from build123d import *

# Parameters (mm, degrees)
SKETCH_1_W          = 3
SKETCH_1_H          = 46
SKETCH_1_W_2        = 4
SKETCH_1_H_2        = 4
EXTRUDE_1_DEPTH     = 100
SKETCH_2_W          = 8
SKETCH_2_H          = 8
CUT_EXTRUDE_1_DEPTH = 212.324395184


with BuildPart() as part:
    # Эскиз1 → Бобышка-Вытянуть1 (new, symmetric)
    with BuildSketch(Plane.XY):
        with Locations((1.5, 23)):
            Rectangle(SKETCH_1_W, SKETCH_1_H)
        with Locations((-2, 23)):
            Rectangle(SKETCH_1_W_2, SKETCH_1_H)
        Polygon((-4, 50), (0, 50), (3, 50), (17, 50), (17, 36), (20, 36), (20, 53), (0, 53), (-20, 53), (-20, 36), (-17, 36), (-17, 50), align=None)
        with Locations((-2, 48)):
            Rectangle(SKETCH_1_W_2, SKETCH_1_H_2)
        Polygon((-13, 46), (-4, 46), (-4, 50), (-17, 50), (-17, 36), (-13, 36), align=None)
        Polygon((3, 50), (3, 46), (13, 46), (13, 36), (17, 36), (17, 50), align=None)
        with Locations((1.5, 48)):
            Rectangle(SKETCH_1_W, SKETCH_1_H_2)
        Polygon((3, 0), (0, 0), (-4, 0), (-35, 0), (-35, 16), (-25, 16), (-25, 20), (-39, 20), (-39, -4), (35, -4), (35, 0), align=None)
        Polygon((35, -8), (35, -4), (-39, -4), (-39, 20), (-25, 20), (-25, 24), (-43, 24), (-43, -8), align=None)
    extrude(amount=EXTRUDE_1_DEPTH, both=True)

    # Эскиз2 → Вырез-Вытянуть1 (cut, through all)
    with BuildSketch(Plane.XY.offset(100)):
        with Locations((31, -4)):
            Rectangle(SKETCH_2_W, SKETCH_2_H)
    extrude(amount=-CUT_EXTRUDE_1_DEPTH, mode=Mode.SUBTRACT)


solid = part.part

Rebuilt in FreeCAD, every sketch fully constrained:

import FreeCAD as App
import Part
import Sketcher
Q = App.Units.Quantity

doc = App.newDocument("Part")
body = doc.addObject("PartDesign::Body", "Body")

# Sketch on XY plane
sketch1 = body.newObject("Sketcher::SketchObject", "Sketch")
sketch1.AttachmentSupport = (doc.getObject("XY_Plane"), [""])
sketch1.MapMode = "FlatFace"
sketch1.addGeometry([
    Part.LineSegment(App.Vector(3, 0, 0), App.Vector(3, 46, 0)),  # 0
    Part.LineSegment(App.Vector(3, 46, 0), App.Vector(13, 46, 0)),  # 1
    Part.LineSegment(App.Vector(13, 46, 0), App.Vector(13, 36, 0)),  # 2
    Part.LineSegment(App.Vector(13, 36, 0), App.Vector(20, 36, 0)),  # 3
    Part.LineSegment(App.Vector(20, 36, 0), App.Vector(20, 53, 0)),  # 4
    Part.LineSegment(App.Vector(20, 53, 0), App.Vector(-20, 53, 0)),  # 5
    Part.LineSegment(App.Vector(-20, 53, 0), App.Vector(-20, 36, 0)),  # 6
    Part.LineSegment(App.Vector(-20, 36, 0), App.Vector(-13, 36, 0)),  # 7
    Part.LineSegment(App.Vector(-13, 36, 0), App.Vector(-13, 46, 0)),  # 8
    Part.LineSegment(App.Vector(-13, 46, 0), App.Vector(-4, 46, 0)),  # 9
    Part.LineSegment(App.Vector(-4, 46, 0), App.Vector(-4, 0, 0)),  # 10
    Part.LineSegment(App.Vector(-4, 0, 0), App.Vector(-35, 0, 0)),  # 11
    Part.LineSegment(App.Vector(-35, 0, 0), App.Vector(-35, 16, 0)),  # 12
    Part.LineSegment(App.Vector(-35, 16, 0), App.Vector(-25, 16, 0)),  # 13
    Part.LineSegment(App.Vector(-25, 16, 0), App.Vector(-25, 24, 0)),  # 14
    Part.LineSegment(App.Vector(-25, 24, 0), App.Vector(-43, 24, 0)),  # 15
    Part.LineSegment(App.Vector(-43, 24, 0), App.Vector(-43, -8, 0)),  # 16
    Part.LineSegment(App.Vector(-43, -8, 0), App.Vector(35, -8, 0)),  # 17
    Part.LineSegment(App.Vector(35, -8, 0), App.Vector(35, 0, 0)),  # 18
    Part.LineSegment(App.Vector(35, 0, 0), App.Vector(3, 0, 0)),  # 19
], False)
sketch1.addConstraint([
    Sketcher.Constraint("Coincident", 0, 2, 1, 1),
    Sketcher.Constraint("Coincident", 1, 2, 2, 1),
    Sketcher.Constraint("Coincident", 2, 2, 3, 1),
    Sketcher.Constraint("Coincident", 3, 2, 4, 1),
    Sketcher.Constraint("Coincident", 4, 2, 5, 1),
    Sketcher.Constraint("Coincident", 5, 2, 6, 1),
    Sketcher.Constraint("Coincident", 6, 2, 7, 1),
    Sketcher.Constraint("Coincident", 7, 2, 8, 1),
    Sketcher.Constraint("Coincident", 8, 2, 9, 1),
    Sketcher.Constraint("Coincident", 9, 2, 10, 1),
    Sketcher.Constraint("Coincident", 10, 2, 11, 1),
    Sketcher.Constraint("Coincident", 11, 2, 12, 1),
    Sketcher.Constraint("Coincident", 12, 2, 13, 1),
    Sketcher.Constraint("Coincident", 13, 2, 14, 1),
    Sketcher.Constraint("Coincident", 14, 2, 15, 1),
    Sketcher.Constraint("Coincident", 15, 2, 16, 1),
    Sketcher.Constraint("Coincident", 16, 2, 17, 1),
    Sketcher.Constraint("Coincident", 17, 2, 18, 1),
    Sketcher.Constraint("Coincident", 18, 2, 19, 1),
    Sketcher.Constraint("Coincident", 19, 2, 0, 1),
    Sketcher.Constraint("Vertical", 0),
    Sketcher.Constraint("Horizontal", 1),
    Sketcher.Constraint("Vertical", 2),
    Sketcher.Constraint("Horizontal", 3),
    Sketcher.Constraint("Vertical", 4),
    Sketcher.Constraint("Horizontal", 5),
    Sketcher.Constraint("Vertical", 6),
    Sketcher.Constraint("Horizontal", 7),
    Sketcher.Constraint("Vertical", 8),
    Sketcher.Constraint("Horizontal", 9),
    Sketcher.Constraint("Vertical", 10),
    Sketcher.Constraint("Horizontal", 11),
    Sketcher.Constraint("Vertical", 12),
    Sketcher.Constraint("Horizontal", 13),
    Sketcher.Constraint("Vertical", 14),
    Sketcher.Constraint("Horizontal", 15),
    Sketcher.Constraint("Vertical", 16),
    Sketcher.Constraint("Horizontal", 17),
    Sketcher.Constraint("Vertical", 18),
    Sketcher.Constraint("Horizontal", 19),
    Sketcher.Constraint("Symmetric", 11, 2, 18, 2, -1, 1),
    Sketcher.Constraint("Symmetric", 3, 2, 6, 2, -2),
    Sketcher.Constraint("Symmetric", 1, 2, 8, 2, -2),
    Sketcher.Constraint("PointOnObject", 10, 2, -1),
    Sketcher.Constraint("Equal", 1, 13),
    Sketcher.Constraint("Equal", 13, 2),
    Sketcher.Constraint("Equal", 19, 16),
    Sketcher.Constraint("Equal", 14, 18),
    Sketcher.Constraint("DistanceX", 1, 1, 1, 2, Q("10 mm")),
    Sketcher.Constraint("DistanceX", 3, 1, 3, 2, Q("7 mm")),
    Sketcher.Constraint("DistanceX", 5, 2, 5, 1, Q("40 mm")),
    Sketcher.Constraint("DistanceX", 9, 1, 9, 2, Q("9 mm")),
    Sketcher.Constraint("DistanceX", 11, 2, 11, 1, Q("31 mm")),
    Sketcher.Constraint("DistanceX", 15, 2, 15, 1, Q("18 mm")),
    Sketcher.Constraint("DistanceY", 0, 1, 0, 2, Q("46 mm")),
    Sketcher.Constraint("DistanceY", 4, 1, 4, 2, Q("17 mm")),
    Sketcher.Constraint("DistanceY", 12, 1, 12, 2, Q("16 mm")),
])
pad1 = body.newObject("PartDesign::Pad", "Pad")
pad1.Profile = sketch1
pad1.Length = 200
pad1.Midplane = True

# Sketch on XY plane
sketch2 = body.newObject("Sketcher::SketchObject", "Sketch001")
sketch2.AttachmentSupport = (doc.getObject("XY_Plane"), [""])
sketch2.MapMode = "FlatFace"
sketch2.AttachmentOffset = App.Placement(App.Vector(0, 0, 100), App.Rotation())
sketch2.addGeometry([
    Part.LineSegment(App.Vector(27, 0, 0), App.Vector(27, -8, 0)),
    Part.LineSegment(App.Vector(27, -8, 0), App.Vector(35, -8, 0)),
    Part.LineSegment(App.Vector(35, -8, 0), App.Vector(35, 0, 0)),
    Part.LineSegment(App.Vector(35, 0, 0), App.Vector(27, 0, 0)),
], False)
sketch2.addConstraint([
    Sketcher.Constraint("Coincident", 0, 2, 1, 1),
    Sketcher.Constraint("Coincident", 1, 2, 2, 1),
    Sketcher.Constraint("Coincident", 2, 2, 3, 1),
    Sketcher.Constraint("Coincident", 3, 2, 0, 1),
    Sketcher.Constraint("Vertical", 0),
    Sketcher.Constraint("Horizontal", 1),
    Sketcher.Constraint("Vertical", 2),
    Sketcher.Constraint("Horizontal", 3),
    Sketcher.Constraint("PointOnObject", 2, 2, -1),
    Sketcher.Constraint("Equal", 3, 0),
    Sketcher.Constraint("DistanceX", 1, 1, 1, 2, Q("8 mm")),
    Sketcher.Constraint("DistanceX", -1, 1, 0, 2, Q("27 mm")),
])
pocket1 = body.newObject("PartDesign::Pocket", "Pocket")
pocket1.Profile = sketch2
pocket1.Type = "ThroughAll"

doc.recompute()
